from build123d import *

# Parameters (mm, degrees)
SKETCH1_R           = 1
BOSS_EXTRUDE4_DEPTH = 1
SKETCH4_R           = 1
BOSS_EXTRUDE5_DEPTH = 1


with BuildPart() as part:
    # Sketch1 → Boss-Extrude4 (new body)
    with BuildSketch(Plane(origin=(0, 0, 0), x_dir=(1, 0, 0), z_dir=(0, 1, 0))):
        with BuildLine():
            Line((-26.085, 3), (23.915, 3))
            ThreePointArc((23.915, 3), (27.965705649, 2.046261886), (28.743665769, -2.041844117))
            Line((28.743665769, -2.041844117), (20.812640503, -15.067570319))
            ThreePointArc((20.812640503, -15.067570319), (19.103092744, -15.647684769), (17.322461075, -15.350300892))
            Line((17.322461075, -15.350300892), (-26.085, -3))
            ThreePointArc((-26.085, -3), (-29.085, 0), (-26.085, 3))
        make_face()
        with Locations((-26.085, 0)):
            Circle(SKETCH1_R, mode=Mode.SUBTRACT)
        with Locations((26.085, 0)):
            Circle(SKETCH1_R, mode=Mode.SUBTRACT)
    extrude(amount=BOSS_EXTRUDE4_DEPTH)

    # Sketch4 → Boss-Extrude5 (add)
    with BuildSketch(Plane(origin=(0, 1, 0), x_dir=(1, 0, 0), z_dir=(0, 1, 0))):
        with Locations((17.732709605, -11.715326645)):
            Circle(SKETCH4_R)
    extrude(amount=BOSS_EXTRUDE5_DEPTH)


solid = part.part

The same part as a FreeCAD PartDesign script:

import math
import FreeCAD as App
import Part
import Sketcher

V = App.Vector

doc = App.newDocument("Part")
body = doc.addObject("PartDesign::Body", "Body")

sketch1 = doc.addObject("Sketcher::SketchObject", "Sketch")
body.addObject(sketch1)
sketch1.AttachmentSupport = (doc.XZ_Plane, [""])
sketch1.MapMode = "FlatFace"
sketch1.addGeometry(Part.LineSegment(V(23.9, -3, 0), V(-26.1, -3, 0)), False)
sketch1.addGeometry(Part.ArcOfCircle(Part.Circle(V(-26.1, 0, 0), V(0, 0, 1), 3), math.radians(90), math.radians(270)), False)
sketch1.addGeometry(Part.LineSegment(V(-26.1, 3, 0), V(17.3, 15.4, 0)), False)
sketch1.addGeometry(Part.ArcOfCircle(Part.Circle(V(18.8, 12, 0), V(0, 0, 1), 3.7), math.radians(57), math.radians(114)), False)
sketch1.addGeometry(Part.LineSegment(V(20.8, 15.1, 0), V(28.7, 2, 0)), False)
sketch1.addGeometry(Part.ArcOfCircle(Part.Circle(V(25.2, 0.6, 0), V(0, 0, 1), 3.8), math.radians(-110), math.radians(22)), False)
sketch1.addGeometry(Part.Circle(V(26.1, 0, 0), V(0, 0, 1), 1), False)
sketch1.addGeometry(Part.Circle(V(-26.1, 0, 0), V(0, 0, 1), 1), False)
sketch1.addConstraint(Sketcher.Constraint("Tangent", 0, 2, 1, 2))
sketch1.addConstraint(Sketcher.Constraint("Coincident", 1, 1, 2, 1))
sketch1.addConstraint(Sketcher.Constraint("Coincident", 2, 2, 3, 2))
sketch1.addConstraint(Sketcher.Constraint("Coincident", 3, 1, 4, 1))
sketch1.addConstraint(Sketcher.Constraint("Coincident", 4, 2, 5, 2))
sketch1.addConstraint(Sketcher.Constraint("Coincident", 5, 1, 0, 1))
sketch1.addConstraint(Sketcher.Constraint("Horizontal", 0))
sketch1.addConstraint(Sketcher.Constraint("Coincident", 7, 3, 1, 3))
sketch1.addConstraint(Sketcher.Constraint("Equal", 6, 7))
sketch1.addConstraint(Sketcher.Constraint("Symmetric", 1, 3, 6, 3, -1, 1))
sketch1.addConstraint(Sketcher.Constraint("Symmetric", 0, 2, 1, 1, -1))
sketch1.addConstraint(Sketcher.Constraint("Diameter", 6, 2.0))
sketch1.addConstraint(Sketcher.Constraint("Radius", 1, 3.0))
sketch1.addConstraint(Sketcher.Constraint("DistanceX", 0, 2, 0, 1, 50.0))
sketch1.addConstraint(Sketcher.Constraint("Radius", 3, 3.701939))
sketch1.addConstraint(Sketcher.Constraint("DistanceX", 1, 3, 6, 3, 52.17))
sketch1.addConstraint(Sketcher.Constraint("Radius", 5, 3.821597))
sketch1.addConstraint(Sketcher.Constraint("DistanceY", -1, 1, 2, 2, 15.350301))
sketch1.addConstraint(Sketcher.Constraint("Distance", 2, 45.130229))
sketch1.addConstraint(Sketcher.Constraint("Distance", 4, 15.250269))
sketch1.addConstraint(Sketcher.Constraint("DistanceX", -1, 1, 5, 3, 25.20571))
sketch1.addConstraint(Sketcher.Constraint("DistanceX", -1, 1, 3, 1, 20.812641))
sketch1.addConstraint(Sketcher.Constraint("DistanceY", -1, 1, 3, 1, 15.06757))
pad1 = doc.addObject("PartDesign::Pad", "Pad")
body.addObject(pad1)
pad1.Profile = sketch1
pad1.Length = 1
pad1.Reversed = True

sketch2 = doc.addObject("Sketcher::SketchObject", "Sketch001")
body.addObject(sketch2)
sketch2.AttachmentSupport = (doc.XZ_Plane, [""])
sketch2.MapMode = "FlatFace"
sketch2.AttachmentOffset = App.Placement(V(0, 0, -1), App.Rotation())
sketch2.addGeometry(Part.Circle(V(17.7, 11.7, 0), V(0, 0, 1), 1), False)
sketch2.addConstraint(Sketcher.Constraint("Diameter", 0, 2.0))
sketch2.addConstraint(Sketcher.Constraint("DistanceX", -1, 1, 0, 3, 17.73271))
sketch2.addConstraint(Sketcher.Constraint("DistanceY", -1, 1, 0, 3, 11.715327))
pad2 = doc.addObject("PartDesign::Pad", "Pad001")
body.addObject(pad2)
pad2.Profile = sketch2
pad2.Length = 1
pad2.Reversed = True

doc.recompute()
